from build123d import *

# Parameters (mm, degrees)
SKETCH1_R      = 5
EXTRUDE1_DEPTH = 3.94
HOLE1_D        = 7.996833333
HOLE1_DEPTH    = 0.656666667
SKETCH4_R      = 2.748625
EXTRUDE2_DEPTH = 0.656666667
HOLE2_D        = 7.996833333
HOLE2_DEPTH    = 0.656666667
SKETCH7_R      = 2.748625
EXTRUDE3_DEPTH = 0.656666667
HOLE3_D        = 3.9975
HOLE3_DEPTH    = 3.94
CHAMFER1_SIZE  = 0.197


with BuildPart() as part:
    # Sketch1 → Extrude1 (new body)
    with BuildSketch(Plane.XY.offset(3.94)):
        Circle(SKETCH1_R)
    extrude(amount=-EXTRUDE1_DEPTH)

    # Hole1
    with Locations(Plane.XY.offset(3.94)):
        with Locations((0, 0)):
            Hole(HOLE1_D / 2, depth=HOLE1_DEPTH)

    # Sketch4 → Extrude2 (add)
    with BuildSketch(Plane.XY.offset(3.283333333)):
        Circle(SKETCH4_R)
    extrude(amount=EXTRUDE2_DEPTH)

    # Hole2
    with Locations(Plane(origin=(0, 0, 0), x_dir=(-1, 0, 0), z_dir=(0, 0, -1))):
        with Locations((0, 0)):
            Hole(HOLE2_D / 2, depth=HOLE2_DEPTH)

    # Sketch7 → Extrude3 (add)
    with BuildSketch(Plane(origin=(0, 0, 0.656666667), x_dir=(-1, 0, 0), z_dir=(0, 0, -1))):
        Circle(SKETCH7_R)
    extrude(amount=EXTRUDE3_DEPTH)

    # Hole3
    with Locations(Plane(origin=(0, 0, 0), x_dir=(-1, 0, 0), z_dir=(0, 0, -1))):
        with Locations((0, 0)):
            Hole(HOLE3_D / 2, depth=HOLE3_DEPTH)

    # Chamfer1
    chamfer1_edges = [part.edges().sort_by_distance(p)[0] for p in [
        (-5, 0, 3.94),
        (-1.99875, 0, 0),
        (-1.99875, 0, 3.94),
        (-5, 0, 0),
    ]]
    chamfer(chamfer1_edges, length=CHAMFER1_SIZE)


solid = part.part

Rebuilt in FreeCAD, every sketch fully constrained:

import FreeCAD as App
import Part
import Sketcher
Q = App.Units.Quantity


def edges_at(feature, points):
    """Names of the edges that pass closest to the given points."""
    edges = feature.Shape.Edges
    near = lambda p: min(range(len(edges)), key=lambda i: edges[i].distToShape(Part.Vertex(*p))[0])
    return sorted({f"Edge{near(p) + 1}" for p in points})

doc = App.newDocument("Part")
body = doc.addObject("PartDesign::Body", "Body")

sketch1 = doc.addObject("Sketcher::SketchObject", "Sketch")
body.addObject(sketch1)
sketch1.AttachmentSupport = (doc.XY_Plane, [""])
sketch1.MapMode = "FlatFace"
sketch1.AttachmentOffset = App.Placement(App.Vector(0, 0, 3.94), App.Rotation())
sketch1.addGeometry(Part.Circle(App.Vector(0, 0, 0), App.Vector(0, 0, 1), 5), False)
sketch1.addConstraint(Sketcher.Constraint("Coincident", 0, 3, -1, 1))
sketch1.addConstraint(Sketcher.Constraint("Diameter", 0, Q("10 mm")))
pad1 = doc.addObject("PartDesign::Pad", "Pad")
body.addObject(pad1)
pad1.Profile = sketch1
pad1.Length = 3.94
pad1.Reversed = True

sketch2 = doc.addObject("Sketcher::SketchObject", "Sketch001")
body.addObject(sketch2)
sketch2.AttachmentSupport = (doc.XY_Plane, [""])
sketch2.MapMode = "FlatFace"
sketch2.AttachmentOffset = App.Placement(App.Vector(0, 0, 3.94), App.Rotation())
sketch2.addGeometry(Part.Circle(App.Vector(0, 0, 0), App.Vector(0, 0, 1), 4), False)
sketch2.addConstraint(Sketcher.Constraint("Coincident", 0, 3, -1, 1))
sketch2.addConstraint(Sketcher.Constraint("Diameter", 0, Q("7.996833 mm")))
doc.recompute()
hole = doc.addObject("PartDesign::Hole", "Hole")
body.addObject(hole)
hole.Profile = sketch2
hole.ThreadType = "None"
hole.Diameter = 7.996833
hole.DepthType = "Dimension"
hole.Depth = 0.656667
hole.DrillPoint = "Flat"

sketch3 = doc.addObject("Sketcher::SketchObject", "Sketch002")
body.addObject(sketch3)
sketch3.AttachmentSupport = (doc.XY_Plane, [""])
sketch3.MapMode = "FlatFace"
sketch3.AttachmentOffset = App.Placement(App.Vector(0, 0, 3.283333), App.Rotation())
sketch3.addGeometry(Part.Circle(App.Vector(0, 0, 0), App.Vector(0, 0, 1), 2.7), False)
sketch3.addConstraint(Sketcher.Constraint("Coincident", 0, 3, -1, 1))
sketch3.addConstraint(Sketcher.Constraint("Diameter", 0, Q("5.49725 mm")))
pad2 = doc.addObject("PartDesign::Pad", "Pad001")
body.addObject(pad2)
pad2.Profile = sketch3
pad2.Length = 0.656667

sketch4 = doc.addObject("Sketcher::SketchObject", "Sketch003")
body.addObject(sketch4)
sketch4.AttachmentSupport = (doc.XY_Plane, [""])
sketch4.MapMode = "FlatFace"
sketch4.addGeometry(Part.Circle(App.Vector(0, 0, 0), App.Vector(0, 0, 1), 4), False)
sketch4.addConstraint(Sketcher.Constraint("Coincident", 0, 3, -1, 1))
sketch4.addConstraint(Sketcher.Constraint("Diameter", 0, Q("7.996833 mm")))
doc.recompute()
hole2 = doc.addObject("PartDesign::Hole", "Hole001")
body.addObject(hole2)
hole2.Profile = sketch4
hole2.ThreadType = "None"
hole2.Diameter = 7.996833
hole2.DepthType = "Dimension"
hole2.Depth = 0.656667
hole2.DrillPoint = "Flat"
hole2.Reversed = True

sketch5 = doc.addObject("Sketcher::SketchObject", "Sketch004")
body.addObject(sketch5)
sketch5.AttachmentSupport = (doc.XY_Plane, [""])
sketch5.MapMode = "FlatFace"
sketch5.AttachmentOffset = App.Placement(App.Vector(0, 0, 0.656667), App.Rotation())
sketch5.addGeometry(Part.Circle(App.Vector(0, 0, 0), App.Vector(0, 0, 1), 2.7), False)
sketch5.addConstraint(Sketcher.Constraint("Coincident", 0, 3, -1, 1))
sketch5.addConstraint(Sketcher.Constraint("Diameter", 0, Q("5.49725 mm")))
pad3 = doc.addObject("PartDesign::Pad", "Pad002")
body.addObject(pad3)
pad3.Profile = sketch5
pad3.Length = 0.656667
pad3.Reversed = True

sketch6 = doc.addObject("Sketcher::SketchObject", "Sketch005")
body.addObject(sketch6)
sketch6.AttachmentSupport = (doc.XY_Plane, [""])
sketch6.MapMode = "FlatFace"
sketch6.addGeometry(Part.Circle(App.Vector(0, 0, 0), App.Vector(0, 0, 1), 2), False)
sketch6.addConstraint(Sketcher.Constraint("Coincident", 0, 3, -1, 1))
sketch6.addConstraint(Sketcher.Constraint("Diameter", 0, Q("3.9975 mm")))
doc.recompute()
hole3 = doc.addObject("PartDesign::Hole", "Hole002")
body.addObject(hole3)
hole3.Profile = sketch6
hole3.ThreadType = "None"
hole3.Diameter = 3.9975
hole3.DepthType = "Dimension"
hole3.Depth = 3.94
hole3.DrillPoint = "Flat"
hole3.Reversed = True
doc.recompute()

chamfer = doc.addObject("PartDesign::Chamfer", "Chamfer")
body.addObject(chamfer)
chamfer.Base = (hole3, edges_at(hole3, [
    (-5, 0, 3.94),
    (-1.999, 0, 0),
    (-1.999, 0, 3.94),
    (-5, 0, 0),
]))
chamfer.Size = 0.197

doc.recompute()
